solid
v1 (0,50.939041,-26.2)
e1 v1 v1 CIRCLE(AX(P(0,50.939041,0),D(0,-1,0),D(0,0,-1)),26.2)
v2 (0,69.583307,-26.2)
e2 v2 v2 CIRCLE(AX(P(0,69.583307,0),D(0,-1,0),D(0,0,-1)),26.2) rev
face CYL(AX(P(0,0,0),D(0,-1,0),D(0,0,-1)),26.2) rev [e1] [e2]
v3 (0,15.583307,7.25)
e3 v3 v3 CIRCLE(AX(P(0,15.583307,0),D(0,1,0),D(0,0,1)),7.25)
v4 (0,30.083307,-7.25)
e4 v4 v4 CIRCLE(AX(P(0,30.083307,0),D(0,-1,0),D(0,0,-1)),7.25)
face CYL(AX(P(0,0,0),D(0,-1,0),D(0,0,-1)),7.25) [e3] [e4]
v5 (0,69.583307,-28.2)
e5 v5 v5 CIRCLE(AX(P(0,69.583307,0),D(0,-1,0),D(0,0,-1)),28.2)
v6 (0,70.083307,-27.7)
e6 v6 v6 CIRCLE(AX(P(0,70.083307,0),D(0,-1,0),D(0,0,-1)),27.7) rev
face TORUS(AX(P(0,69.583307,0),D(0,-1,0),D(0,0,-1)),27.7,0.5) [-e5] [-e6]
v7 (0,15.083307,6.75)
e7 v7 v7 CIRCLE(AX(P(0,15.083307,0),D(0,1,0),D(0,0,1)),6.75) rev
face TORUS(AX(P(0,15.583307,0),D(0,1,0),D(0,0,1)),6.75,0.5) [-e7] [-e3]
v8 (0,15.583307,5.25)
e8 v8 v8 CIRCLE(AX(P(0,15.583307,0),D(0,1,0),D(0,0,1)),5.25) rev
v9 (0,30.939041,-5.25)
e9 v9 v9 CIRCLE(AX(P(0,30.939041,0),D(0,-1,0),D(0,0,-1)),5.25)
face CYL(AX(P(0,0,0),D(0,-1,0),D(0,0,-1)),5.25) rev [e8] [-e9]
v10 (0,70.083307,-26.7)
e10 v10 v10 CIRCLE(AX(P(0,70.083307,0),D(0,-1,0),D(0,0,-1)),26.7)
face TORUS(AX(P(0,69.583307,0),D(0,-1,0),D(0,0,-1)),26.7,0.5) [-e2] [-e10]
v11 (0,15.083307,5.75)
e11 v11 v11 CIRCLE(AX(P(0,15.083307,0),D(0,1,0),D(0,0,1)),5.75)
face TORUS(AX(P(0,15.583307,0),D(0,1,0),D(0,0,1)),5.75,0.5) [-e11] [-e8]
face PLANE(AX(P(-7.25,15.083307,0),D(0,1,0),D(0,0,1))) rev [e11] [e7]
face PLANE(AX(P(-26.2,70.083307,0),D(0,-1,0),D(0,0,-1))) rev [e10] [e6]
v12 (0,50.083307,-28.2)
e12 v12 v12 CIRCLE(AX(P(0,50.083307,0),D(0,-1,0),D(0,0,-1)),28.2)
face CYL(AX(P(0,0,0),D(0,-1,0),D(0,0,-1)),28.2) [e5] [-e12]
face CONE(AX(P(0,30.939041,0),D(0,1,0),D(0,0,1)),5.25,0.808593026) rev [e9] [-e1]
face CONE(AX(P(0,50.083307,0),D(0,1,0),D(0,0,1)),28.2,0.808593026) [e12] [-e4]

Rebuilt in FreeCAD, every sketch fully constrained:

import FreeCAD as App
import Part
import Sketcher


def edges_at(feature, points):
    """Names of the edges that pass closest to the given points."""
    edges = feature.Shape.Edges
    near = lambda p: min(range(len(edges)), key=lambda i: edges[i].distToShape(Part.Vertex(*p))[0])
    return sorted({f"Edge{near(p) + 1}" for p in points})

doc = App.newDocument("Part")
body = doc.addObject("PartDesign::Body", "Body")

# Sketch on XY plane
sketch1 = body.newObject("Sketcher::SketchObject", "Sketch")
sketch1.AttachmentSupport = (doc.getObject("XY_Plane"), [""])
sketch1.MapMode = "FlatFace"
sketch1.addGeometry([
    Part.LineSegment(App.Vector(-5.2, 15.1, 0), App.Vector(-5.2, 30.9, 0)),  # 0
    Part.LineSegment(App.Vector(-5.2, 30.9, 0), App.Vector(-26.2, 50.9, 0)),  # 1
    Part.LineSegment(App.Vector(-26.2, 50.9, 0), App.Vector(-26.2, 70.1, 0)),  # 2
    Part.LineSegment(App.Vector(-26.2, 70.1, 0), App.Vector(-28.2, 70.1, 0)),  # 3
    Part.LineSegment(App.Vector(-28.2, 70.1, 0), App.Vector(-28.2, 50.1, 0)),  # 4
    Part.LineSegment(App.Vector(-28.2, 50.1, 0), App.Vector(-7.2, 30.1, 0)),  # 5
    Part.LineSegment(App.Vector(-7.2, 30.1, 0), App.Vector(-7.2, 15.1, 0)),  # 6
    Part.LineSegment(App.Vector(-7.2, 15.1, 0), App.Vector(-5.2, 15.1, 0)),  # 7
], False)
sketch1.addConstraint([
    Sketcher.Constraint("Coincident", 0, 2, 1, 1),
    Sketcher.Constraint("Coincident", 1, 2, 2, 1),
    Sketcher.Constraint("Coincident", 2, 2, 3, 1),
    Sketcher.Constraint("Coincident", 3, 2, 4, 1),
    Sketcher.Constraint("Coincident", 4, 2, 5, 1),
    Sketcher.Constraint("Coincident", 5, 2, 6, 1),
    Sketcher.Constraint("Coincident", 6, 2, 7, 1),
    Sketcher.Constraint("Coincident", 7, 2, 0, 1),
    Sketcher.Constraint("Vertical", 0),
    Sketcher.Constraint("Vertical", 2),
    Sketcher.Constraint("Horizontal", 3),
    Sketcher.Constraint("Vertical", 4),
    Sketcher.Constraint("Vertical", 6),
    Sketcher.Constraint("Horizontal", 7),
    Sketcher.Constraint("Parallel", 1, 5),
    Sketcher.Constraint("Equal", 3, 7),
    Sketcher.Constraint("DistanceX", 3, 2, 3, 1, 2.0),
    Sketcher.Constraint("DistanceY", 4, 2, 4, 1, 20.0),
    Sketcher.Constraint("DistanceY", 6, 2, 6, 1, 15.0),
    Sketcher.Constraint("DistanceY", 0, 2, 1, 2, 20.0),
    Sketcher.Constraint("DistanceX", 1, 2, -1, 1, 26.2),
    Sketcher.Constraint("DistanceX", 0, 2, -1, 1, 5.25),
    Sketcher.Constraint("DistanceY", 0, 1, 0, 2, 15.855734),
    Sketcher.Constraint("DistanceY", -1, 1, 0, 2, 30.939041),
])
revolution = body.newObject("PartDesign::Revolution", "Revolution")
revolution.Profile = sketch1
revolution.ReferenceAxis = (sketch1, ["V_Axis"])
revolution.Angle = 360
doc.recompute()

fillet = body.newObject("PartDesign::Fillet", "Fillet")
fillet.Base = (revolution, edges_at(revolution, [
    (7.25, 15.083, 0),
    (28.2, 70.083, 0),
    (26.2, 70.083, 0),
    (5.25, 15.083, 0),
]))
fillet.Radius = 0.5

doc.recompute()
